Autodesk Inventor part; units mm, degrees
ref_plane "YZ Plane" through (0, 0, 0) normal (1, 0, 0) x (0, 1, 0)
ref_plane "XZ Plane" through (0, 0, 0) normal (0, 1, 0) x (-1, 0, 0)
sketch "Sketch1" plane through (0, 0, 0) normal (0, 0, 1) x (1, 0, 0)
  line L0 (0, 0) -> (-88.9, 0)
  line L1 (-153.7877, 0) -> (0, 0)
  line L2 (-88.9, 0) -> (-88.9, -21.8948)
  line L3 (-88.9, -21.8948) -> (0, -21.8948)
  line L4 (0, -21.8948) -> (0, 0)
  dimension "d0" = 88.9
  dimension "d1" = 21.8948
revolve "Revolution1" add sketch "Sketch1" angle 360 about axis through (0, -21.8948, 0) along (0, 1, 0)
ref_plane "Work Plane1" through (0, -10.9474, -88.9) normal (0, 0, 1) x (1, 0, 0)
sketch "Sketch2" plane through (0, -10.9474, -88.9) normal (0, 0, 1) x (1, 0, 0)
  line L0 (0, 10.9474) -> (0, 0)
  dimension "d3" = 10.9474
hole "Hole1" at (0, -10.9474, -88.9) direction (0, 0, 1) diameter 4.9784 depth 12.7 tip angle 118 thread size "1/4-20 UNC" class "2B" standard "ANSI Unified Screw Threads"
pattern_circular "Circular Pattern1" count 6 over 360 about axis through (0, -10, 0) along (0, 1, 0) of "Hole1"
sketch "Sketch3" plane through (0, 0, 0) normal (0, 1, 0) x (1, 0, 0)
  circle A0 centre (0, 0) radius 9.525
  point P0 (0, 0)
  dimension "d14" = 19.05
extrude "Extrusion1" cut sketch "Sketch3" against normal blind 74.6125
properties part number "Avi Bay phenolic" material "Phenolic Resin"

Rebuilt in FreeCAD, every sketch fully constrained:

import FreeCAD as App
import Part
import Sketcher
from FreeCAD import Vector
Q = App.Units.Quantity


def add_polygon(sketch, points):
    """Adds a closed chain of lines whose ends are joined by coincident constraints."""
    first, n = sketch.GeometryCount, len(points)
    for a, b in zip(points, points[1:] + points[:1]):
        sketch.addGeometry(Part.LineSegment(App.Vector(*a, 0), App.Vector(*b, 0)), False)
    for i in range(n):
        sketch.addConstraint(Sketcher.Constraint("Coincident", first + i, 2, first + (i + 1) % n, 1))

doc = App.newDocument("Part")
body = doc.addObject("PartDesign::Body", "Body")

sketch1 = doc.addObject("Sketcher::SketchObject", "Sketch")
body.addObject(sketch1)
sketch1.AttachmentSupport = (doc.XY_Plane, [""])
sketch1.MapMode = "FlatFace"
add_polygon(sketch1, [(0, -21.8948), (0, 0), (-88.9, 0), (-88.9, -21.8948)])
sketch1.addConstraint([
    Sketcher.Constraint("Vertical", 0),
    Sketcher.Constraint("Horizontal", 1),
    Sketcher.Constraint("Vertical", 2),
    Sketcher.Constraint("Horizontal", 3),
    Sketcher.Constraint("Coincident", 0, 2, -1, 1),
    Sketcher.Constraint("DistanceX", 1, 2, 1, 1, Q("3.5 in")),
    Sketcher.Constraint("DistanceY", 0, 1, 0, 2, Q("0.862 in")),
])
revolution = doc.addObject("PartDesign::Revolution", "Revolution")
body.addObject(revolution)
revolution.Profile = sketch1
revolution.ReferenceAxis = (sketch1, ["V_Axis"])
revolution.Angle = 360

sketch2 = doc.addObject("Sketcher::SketchObject", "Sketch001")
body.addObject(sketch2)
sketch2.AttachmentSupport = (doc.XY_Plane, [""])
sketch2.MapMode = "FlatFace"
sketch2.AttachmentOffset = App.Placement(Vector(0, 0, -3.5 * 25.4), App.Rotation())
sketch2.addGeometry(Part.Circle(Vector(0, -10.9474, 0), Vector(0, 0, 1), 2.4892), False)
sketch2.addConstraint([
    Sketcher.Constraint("PointOnObject", 0, 3, -2),
    Sketcher.Constraint("Diameter", 0, Q("0.196 in")),
    Sketcher.Constraint("DistanceY", 0, 3, -1, 1, Q("0.431 in")),
])
doc.recompute()
hole = doc.addObject("PartDesign::Hole", "Hole")
body.addObject(hole)
hole.Profile = sketch2
hole.ThreadType = "None"
hole.Diameter = Q("0.196 in")
hole.DepthType = "Dimension"
hole.Depth = Q("0.5 in")
hole.DrillPoint = "Angled"
hole.DrillPointAngle = 118
hole.Reversed = True
doc.recompute()

polarpattern = doc.addObject("PartDesign::PolarPattern", "PolarPattern")
body.addObject(polarpattern)
polarpattern.Originals = [hole]
polarpattern.Axis = (doc.Y_Axis, [""])
polarpattern.Angle = 360
polarpattern.Occurrences = 6
body.Tip = polarpattern

sketch3 = doc.addObject("Sketcher::SketchObject", "Sketch002")
body.addObject(sketch3)
sketch3.AttachmentSupport = (doc.XZ_Plane, [""])
sketch3.MapMode = "FlatFace"
sketch3.addGeometry(Part.Circle(Vector(0, 0, 0), Vector(0, 0, 1), 9.525), False)
sketch3.addConstraint([
    Sketcher.Constraint("Coincident", 0, 3, -1, 1),
    Sketcher.Constraint("Diameter", 0, Q("0.75 in")),
])
pocket1 = doc.addObject("PartDesign::Pocket", "Pocket")
body.addObject(pocket1)
pocket1.Profile = sketch3
pocket1.Length = Q("2.9375 in")
pocket1.Reversed = True

doc.recompute()
